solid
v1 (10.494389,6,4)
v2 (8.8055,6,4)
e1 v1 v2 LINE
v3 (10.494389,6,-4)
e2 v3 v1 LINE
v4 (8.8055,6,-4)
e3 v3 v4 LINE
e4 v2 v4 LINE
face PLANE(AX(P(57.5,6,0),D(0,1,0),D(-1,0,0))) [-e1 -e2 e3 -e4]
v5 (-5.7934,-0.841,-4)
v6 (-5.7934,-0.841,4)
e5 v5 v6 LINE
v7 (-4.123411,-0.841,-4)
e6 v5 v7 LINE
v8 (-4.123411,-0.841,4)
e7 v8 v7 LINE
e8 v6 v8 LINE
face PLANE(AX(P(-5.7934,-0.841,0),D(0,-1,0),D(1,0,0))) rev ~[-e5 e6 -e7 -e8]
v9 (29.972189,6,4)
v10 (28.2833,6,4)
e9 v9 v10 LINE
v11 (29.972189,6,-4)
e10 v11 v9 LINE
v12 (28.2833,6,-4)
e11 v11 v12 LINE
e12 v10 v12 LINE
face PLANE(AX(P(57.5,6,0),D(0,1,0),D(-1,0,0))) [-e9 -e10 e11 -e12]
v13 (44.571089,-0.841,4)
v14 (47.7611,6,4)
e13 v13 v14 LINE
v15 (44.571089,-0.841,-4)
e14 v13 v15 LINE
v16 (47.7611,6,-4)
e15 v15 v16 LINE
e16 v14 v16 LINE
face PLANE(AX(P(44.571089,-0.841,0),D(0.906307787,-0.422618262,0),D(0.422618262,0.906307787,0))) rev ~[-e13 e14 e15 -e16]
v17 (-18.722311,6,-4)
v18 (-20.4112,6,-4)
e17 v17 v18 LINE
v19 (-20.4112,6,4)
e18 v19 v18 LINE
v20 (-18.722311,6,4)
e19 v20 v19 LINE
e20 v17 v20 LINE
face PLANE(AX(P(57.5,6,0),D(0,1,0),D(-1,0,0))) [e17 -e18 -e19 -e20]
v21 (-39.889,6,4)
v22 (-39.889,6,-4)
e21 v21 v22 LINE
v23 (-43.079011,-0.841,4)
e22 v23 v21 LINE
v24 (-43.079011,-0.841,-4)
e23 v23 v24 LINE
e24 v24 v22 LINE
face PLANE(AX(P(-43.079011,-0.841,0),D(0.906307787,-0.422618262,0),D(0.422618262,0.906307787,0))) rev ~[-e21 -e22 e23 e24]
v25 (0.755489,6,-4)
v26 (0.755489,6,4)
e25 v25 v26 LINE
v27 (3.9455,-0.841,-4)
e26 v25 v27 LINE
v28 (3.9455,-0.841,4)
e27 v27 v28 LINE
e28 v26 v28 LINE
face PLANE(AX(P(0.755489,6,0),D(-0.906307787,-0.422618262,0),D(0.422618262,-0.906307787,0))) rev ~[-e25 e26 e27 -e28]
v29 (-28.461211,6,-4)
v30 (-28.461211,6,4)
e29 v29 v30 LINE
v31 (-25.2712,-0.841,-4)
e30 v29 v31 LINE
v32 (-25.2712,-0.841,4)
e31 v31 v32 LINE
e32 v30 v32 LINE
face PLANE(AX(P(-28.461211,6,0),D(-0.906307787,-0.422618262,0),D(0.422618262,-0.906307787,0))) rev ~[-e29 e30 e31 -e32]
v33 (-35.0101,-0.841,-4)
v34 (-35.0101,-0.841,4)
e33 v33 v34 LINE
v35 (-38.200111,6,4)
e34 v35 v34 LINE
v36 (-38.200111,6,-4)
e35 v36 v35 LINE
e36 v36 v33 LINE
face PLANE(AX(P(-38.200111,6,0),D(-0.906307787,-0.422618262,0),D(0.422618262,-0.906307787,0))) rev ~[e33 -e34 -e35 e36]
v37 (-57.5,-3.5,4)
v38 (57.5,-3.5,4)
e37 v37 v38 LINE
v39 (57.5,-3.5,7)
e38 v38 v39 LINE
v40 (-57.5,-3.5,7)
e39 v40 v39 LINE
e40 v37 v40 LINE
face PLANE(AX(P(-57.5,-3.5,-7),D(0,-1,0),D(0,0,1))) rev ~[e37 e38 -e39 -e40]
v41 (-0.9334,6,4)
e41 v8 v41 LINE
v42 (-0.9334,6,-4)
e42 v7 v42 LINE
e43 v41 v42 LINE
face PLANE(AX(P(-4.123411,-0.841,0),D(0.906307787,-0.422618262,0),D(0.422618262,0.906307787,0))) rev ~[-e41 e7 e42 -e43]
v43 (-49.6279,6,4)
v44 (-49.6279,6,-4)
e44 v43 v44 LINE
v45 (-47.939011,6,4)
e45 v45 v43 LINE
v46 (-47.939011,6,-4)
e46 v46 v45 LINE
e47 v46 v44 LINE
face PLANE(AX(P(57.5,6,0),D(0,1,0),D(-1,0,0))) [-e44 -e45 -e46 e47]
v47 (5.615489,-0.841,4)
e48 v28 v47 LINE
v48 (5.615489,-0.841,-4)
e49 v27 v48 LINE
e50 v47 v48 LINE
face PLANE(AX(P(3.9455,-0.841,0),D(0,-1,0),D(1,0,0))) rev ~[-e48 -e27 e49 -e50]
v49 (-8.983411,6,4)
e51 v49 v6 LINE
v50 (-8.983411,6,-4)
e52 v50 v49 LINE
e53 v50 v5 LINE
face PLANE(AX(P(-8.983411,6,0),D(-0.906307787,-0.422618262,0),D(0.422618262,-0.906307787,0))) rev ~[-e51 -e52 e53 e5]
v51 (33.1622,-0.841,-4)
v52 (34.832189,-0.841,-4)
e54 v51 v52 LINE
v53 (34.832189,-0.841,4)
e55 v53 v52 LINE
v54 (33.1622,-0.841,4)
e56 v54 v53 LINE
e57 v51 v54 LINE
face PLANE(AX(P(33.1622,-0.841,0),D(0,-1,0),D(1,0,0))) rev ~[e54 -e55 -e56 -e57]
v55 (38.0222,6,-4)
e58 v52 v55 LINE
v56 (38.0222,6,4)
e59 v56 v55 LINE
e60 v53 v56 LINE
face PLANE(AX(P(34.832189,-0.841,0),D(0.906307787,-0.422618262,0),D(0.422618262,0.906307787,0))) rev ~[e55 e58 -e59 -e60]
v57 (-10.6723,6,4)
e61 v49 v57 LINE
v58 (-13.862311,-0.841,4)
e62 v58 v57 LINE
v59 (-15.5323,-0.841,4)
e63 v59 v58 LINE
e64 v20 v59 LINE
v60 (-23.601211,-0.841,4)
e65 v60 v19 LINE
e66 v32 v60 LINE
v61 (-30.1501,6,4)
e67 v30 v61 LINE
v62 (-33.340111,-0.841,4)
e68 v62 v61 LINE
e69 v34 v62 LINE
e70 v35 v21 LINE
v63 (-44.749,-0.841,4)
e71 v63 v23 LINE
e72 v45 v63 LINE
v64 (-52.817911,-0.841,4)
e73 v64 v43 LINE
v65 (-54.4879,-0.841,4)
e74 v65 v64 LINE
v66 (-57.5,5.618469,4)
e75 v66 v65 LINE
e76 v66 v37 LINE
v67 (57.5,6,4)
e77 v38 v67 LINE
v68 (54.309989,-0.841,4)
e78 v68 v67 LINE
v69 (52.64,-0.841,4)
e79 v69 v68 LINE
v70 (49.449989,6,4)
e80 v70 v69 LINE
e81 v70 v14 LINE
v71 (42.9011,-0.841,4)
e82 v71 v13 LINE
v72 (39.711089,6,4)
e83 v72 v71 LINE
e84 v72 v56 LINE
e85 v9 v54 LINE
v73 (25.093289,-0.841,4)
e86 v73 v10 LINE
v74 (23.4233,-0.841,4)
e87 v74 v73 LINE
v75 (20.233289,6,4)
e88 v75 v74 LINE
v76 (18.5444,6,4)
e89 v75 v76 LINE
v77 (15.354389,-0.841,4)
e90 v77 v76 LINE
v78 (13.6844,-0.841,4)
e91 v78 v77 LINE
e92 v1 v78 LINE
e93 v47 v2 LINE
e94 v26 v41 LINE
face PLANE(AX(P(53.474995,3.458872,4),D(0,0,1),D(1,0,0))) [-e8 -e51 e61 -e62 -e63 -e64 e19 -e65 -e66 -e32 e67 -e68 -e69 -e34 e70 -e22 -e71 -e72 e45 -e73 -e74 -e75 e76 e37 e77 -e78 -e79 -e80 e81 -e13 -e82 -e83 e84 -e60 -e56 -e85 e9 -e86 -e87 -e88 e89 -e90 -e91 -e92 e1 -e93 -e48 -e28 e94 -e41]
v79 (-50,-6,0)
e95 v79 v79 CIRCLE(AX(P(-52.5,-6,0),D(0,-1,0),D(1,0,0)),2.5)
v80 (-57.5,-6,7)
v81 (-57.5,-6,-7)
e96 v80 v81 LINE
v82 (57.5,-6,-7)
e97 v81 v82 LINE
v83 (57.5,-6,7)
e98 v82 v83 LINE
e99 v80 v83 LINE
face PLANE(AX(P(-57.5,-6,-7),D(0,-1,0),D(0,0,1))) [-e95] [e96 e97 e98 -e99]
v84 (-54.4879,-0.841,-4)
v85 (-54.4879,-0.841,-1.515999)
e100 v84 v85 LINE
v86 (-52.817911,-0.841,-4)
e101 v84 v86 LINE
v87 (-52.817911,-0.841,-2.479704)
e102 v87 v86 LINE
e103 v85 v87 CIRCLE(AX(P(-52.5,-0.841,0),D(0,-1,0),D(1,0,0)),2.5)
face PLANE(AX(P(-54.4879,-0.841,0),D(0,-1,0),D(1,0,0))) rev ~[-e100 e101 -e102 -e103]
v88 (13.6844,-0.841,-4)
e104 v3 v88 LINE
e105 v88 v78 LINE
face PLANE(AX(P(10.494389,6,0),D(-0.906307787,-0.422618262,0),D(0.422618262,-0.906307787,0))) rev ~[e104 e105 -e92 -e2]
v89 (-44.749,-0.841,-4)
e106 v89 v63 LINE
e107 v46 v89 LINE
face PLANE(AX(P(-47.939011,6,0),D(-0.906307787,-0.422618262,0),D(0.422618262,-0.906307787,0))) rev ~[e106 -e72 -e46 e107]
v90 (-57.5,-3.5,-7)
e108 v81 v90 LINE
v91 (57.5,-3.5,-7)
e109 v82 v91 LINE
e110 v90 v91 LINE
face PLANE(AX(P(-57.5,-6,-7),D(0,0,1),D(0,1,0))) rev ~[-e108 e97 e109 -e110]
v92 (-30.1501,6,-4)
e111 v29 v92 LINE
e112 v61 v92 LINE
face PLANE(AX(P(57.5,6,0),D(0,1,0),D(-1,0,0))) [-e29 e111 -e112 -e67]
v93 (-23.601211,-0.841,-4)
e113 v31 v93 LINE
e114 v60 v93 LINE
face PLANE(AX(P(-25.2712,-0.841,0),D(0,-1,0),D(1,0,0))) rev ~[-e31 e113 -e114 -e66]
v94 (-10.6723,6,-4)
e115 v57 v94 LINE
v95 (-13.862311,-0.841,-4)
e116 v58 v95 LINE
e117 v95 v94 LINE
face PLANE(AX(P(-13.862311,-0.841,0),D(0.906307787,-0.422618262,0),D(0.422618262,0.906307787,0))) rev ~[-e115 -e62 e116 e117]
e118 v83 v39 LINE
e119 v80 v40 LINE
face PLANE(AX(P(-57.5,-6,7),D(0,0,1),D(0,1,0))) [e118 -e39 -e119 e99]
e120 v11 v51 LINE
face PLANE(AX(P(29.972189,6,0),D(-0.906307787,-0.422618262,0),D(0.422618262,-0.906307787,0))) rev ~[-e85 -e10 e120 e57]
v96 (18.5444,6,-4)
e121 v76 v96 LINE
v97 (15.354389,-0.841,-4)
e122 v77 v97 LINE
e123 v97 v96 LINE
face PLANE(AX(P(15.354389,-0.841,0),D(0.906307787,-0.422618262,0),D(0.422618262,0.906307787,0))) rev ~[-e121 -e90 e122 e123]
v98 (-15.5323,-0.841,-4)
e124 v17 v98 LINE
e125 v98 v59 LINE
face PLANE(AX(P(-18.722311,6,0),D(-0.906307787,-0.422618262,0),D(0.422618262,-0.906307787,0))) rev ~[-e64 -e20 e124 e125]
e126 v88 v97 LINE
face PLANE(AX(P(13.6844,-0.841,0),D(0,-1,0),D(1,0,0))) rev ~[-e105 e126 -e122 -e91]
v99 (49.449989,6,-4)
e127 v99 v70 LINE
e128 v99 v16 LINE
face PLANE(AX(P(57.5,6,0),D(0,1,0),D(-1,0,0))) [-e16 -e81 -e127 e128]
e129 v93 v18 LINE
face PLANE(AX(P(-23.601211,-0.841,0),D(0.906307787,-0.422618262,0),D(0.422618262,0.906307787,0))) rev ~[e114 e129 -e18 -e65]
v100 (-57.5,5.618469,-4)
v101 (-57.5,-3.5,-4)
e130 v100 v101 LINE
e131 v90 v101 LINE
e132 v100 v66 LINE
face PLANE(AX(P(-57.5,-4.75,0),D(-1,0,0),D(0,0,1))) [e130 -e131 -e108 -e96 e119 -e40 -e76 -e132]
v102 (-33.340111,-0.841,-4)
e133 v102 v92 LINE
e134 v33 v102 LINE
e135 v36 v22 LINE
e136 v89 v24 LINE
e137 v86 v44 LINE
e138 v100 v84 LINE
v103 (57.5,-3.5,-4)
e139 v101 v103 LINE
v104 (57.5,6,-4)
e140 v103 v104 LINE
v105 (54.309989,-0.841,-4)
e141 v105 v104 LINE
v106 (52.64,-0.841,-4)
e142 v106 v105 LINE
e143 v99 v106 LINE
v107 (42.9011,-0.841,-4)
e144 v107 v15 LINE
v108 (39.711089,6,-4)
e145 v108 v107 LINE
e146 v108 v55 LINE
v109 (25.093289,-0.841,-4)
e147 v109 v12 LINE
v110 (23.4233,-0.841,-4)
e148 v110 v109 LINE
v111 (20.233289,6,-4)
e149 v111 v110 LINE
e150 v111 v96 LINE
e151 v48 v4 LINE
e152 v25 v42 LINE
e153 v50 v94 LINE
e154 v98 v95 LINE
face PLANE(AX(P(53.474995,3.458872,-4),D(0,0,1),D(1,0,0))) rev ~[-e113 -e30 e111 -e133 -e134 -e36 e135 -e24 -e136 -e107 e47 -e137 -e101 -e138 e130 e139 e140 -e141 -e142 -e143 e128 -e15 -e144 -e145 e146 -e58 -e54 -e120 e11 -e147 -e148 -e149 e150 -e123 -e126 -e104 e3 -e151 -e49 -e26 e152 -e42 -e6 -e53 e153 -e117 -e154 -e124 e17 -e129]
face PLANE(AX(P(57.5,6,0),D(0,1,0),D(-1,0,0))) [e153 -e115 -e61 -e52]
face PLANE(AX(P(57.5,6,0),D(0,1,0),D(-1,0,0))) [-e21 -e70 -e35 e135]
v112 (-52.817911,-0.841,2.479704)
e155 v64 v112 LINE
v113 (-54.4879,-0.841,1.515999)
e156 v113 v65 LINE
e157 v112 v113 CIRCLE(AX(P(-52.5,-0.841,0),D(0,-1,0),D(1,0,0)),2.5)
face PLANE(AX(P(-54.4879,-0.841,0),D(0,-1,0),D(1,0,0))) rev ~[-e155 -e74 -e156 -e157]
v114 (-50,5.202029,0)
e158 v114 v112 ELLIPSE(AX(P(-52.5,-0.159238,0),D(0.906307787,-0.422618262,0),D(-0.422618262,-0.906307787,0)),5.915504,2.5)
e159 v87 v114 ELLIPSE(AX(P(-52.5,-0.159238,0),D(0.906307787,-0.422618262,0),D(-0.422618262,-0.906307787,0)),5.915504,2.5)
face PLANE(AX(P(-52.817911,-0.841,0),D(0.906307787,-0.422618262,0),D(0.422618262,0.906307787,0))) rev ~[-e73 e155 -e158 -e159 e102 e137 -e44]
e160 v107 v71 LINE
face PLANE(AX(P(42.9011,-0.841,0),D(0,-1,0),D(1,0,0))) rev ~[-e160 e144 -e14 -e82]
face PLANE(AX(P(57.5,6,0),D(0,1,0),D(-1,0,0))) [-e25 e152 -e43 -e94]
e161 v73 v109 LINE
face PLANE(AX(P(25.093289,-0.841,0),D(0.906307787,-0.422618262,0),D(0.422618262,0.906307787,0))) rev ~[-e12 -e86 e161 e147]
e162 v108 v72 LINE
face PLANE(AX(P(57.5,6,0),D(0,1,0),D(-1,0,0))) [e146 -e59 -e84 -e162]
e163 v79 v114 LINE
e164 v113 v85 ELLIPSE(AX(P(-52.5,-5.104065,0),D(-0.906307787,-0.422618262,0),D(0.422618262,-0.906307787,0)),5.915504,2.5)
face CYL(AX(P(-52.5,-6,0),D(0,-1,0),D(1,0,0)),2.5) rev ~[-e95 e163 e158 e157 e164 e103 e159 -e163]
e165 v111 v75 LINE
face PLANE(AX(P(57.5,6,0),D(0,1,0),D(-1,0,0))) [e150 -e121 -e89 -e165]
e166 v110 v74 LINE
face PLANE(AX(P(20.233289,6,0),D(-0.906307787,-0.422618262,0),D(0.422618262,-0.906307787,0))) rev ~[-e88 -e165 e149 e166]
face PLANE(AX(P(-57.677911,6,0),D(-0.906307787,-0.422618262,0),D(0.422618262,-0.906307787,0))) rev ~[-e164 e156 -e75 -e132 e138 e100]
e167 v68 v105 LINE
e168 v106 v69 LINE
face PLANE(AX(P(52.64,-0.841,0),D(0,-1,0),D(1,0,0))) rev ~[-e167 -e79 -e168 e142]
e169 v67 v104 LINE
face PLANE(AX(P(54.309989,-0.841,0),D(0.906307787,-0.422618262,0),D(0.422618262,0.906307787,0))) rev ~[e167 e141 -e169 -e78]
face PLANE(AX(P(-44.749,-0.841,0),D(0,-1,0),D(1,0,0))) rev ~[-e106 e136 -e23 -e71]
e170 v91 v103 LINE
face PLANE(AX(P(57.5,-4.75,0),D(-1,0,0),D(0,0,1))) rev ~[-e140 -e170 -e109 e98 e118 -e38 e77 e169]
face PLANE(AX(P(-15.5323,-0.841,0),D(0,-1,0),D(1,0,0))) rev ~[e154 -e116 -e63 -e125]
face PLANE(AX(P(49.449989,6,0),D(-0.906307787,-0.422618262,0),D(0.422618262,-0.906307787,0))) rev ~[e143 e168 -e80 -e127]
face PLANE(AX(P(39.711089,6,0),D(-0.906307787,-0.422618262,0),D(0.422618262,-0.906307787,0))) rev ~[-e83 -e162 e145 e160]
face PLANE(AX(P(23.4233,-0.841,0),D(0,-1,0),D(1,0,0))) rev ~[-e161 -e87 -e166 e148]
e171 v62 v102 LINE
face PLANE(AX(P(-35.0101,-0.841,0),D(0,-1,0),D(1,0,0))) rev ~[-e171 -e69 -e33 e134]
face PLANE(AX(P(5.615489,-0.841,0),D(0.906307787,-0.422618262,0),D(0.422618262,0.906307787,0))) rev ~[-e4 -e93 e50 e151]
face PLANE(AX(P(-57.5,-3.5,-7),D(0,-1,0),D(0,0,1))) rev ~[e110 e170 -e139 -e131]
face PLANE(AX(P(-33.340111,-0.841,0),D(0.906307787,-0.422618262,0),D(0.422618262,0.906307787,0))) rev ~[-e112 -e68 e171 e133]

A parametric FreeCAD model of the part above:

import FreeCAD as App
import Part
import Sketcher
Q = App.Units.Quantity


def add_polygon(sketch, points):
    """Adds a closed chain of lines whose ends are joined by coincident constraints."""
    first, n = sketch.GeometryCount, len(points)
    for a, b in zip(points, points[1:] + points[:1]):
        sketch.addGeometry(Part.LineSegment(App.Vector(*a, 0), App.Vector(*b, 0)), False)
    for i in range(n):
        sketch.addConstraint(Sketcher.Constraint("Coincident", first + i, 2, first + (i + 1) % n, 1))

doc = App.newDocument("Part")
params = doc.addObject("Spreadsheet::Sheet", "Params")
for row, (alias, value) in enumerate([
    ("sketch1_width", "115 mm"),
    ("sketch1_height", "12 mm"),
    ("pad1_length", "8 mm"),
    ("pocket1_length", "10 mm"),
    ("linearpattern_pitch", "9.7389 mm"),
    ("sketch3_height", "14 mm"),
    ("sketch3_width", "2.5 mm"),
    ("pad2_length", "115 mm"),
    ("sketch4_diameter", "5 mm"),
], start=1):
    params.set(f"A{row}", alias)
    params.set(f"B{row}", "=" + value)
    params.setAlias(f"B{row}", alias)

body = doc.addObject("PartDesign::Body", "Body")

# Sketch on XY plane
sketch1 = body.newObject("Sketcher::SketchObject", "Sketch")
sketch1.AttachmentSupport = (doc.getObject("XY_Plane"), [""])
sketch1.MapMode = "FlatFace"
add_polygon(sketch1, [(57.5, 6), (-57.5, 6), (-57.5, -6), (57.5, -6)])  # lines 0-3
sketch1.addConstraint([
    Sketcher.Constraint("Horizontal", 0),
    Sketcher.Constraint("Vertical", 1),
    Sketcher.Constraint("Horizontal", 2),
    Sketcher.Constraint("Vertical", 3),
    Sketcher.Constraint("Symmetric", 0, 2, 2, 2, -1, 1),
    Sketcher.Constraint("DistanceX", 0, 2, 0, 1, 115.0),
    Sketcher.Constraint("DistanceY", 1, 2, 1, 1, 12.0),
])
sketch1.setExpression("Constraints[9]", "Params.sketch1_width")
sketch1.setExpression("Constraints[10]", "Params.sketch1_height")
pad1 = body.newObject("PartDesign::Pad", "Pad")
pad1.Profile = sketch1
pad1.setExpression("Length", "Params.pad1_length")
pad1.Midplane = True

# Sketch on XY plane
sketch2 = body.newObject("Sketcher::SketchObject", "Sketch001")
sketch2.AttachmentSupport = (doc.getObject("XY_Plane"), [""])
sketch2.MapMode = "FlatFace"
add_polygon(sketch2, [(57.5, 6), (49.449989, 6), (52.64, -0.841), (54.309989, -0.841)])  # lines 0-3
sketch2.addConstraint([
    Sketcher.Constraint("Horizontal", 0),
    Sketcher.Constraint("Horizontal", 2),
    Sketcher.Constraint("Equal", 1, 3),
    Sketcher.Constraint("Angle", 1, Q("-65 deg")),
    Sketcher.Constraint("DistanceY", -1, 1, 0, 2, 6.0),
    Sketcher.Constraint("DistanceX", -1, 1, 3, 2, 57.5),
    Sketcher.Constraint("DistanceX", -1, 1, 1, 2, 52.64),
    Sketcher.Constraint("DistanceY", 1, 2, -1, 1, 0.841),
])
pocket1 = body.newObject("PartDesign::Pocket", "Pocket")
pocket1.Profile = sketch2
pocket1.setExpression("Length", "Params.pocket1_length")
pocket1.Midplane = True
doc.recompute()

linearpattern = body.newObject("PartDesign::LinearPattern", "LinearPattern")
linearpattern.Originals = [pocket1]
linearpattern.Direction = (doc.getObject("X_Axis"), [""])
linearpattern.Mode = "offset"
linearpattern.setExpression("Offset", "Params.linearpattern_pitch")
linearpattern.Occurrences = 13
linearpattern.Reversed = True
body.Tip = linearpattern

# Sketch on YZ plane
sketch3 = body.newObject("Sketcher::SketchObject", "Sketch002")
sketch3.AttachmentSupport = (doc.getObject("YZ_Plane"), [""])
sketch3.MapMode = "FlatFace"
sketch3.AttachmentOffset = App.Placement(App.Vector(0, 0, -57.5), App.Rotation())
add_polygon(sketch3, [(-3.5, -7), (-6, -7), (-6, 7), (-3.5, 7)])  # lines 0-3
sketch3.addConstraint([
    Sketcher.Constraint("Horizontal", 0),
    Sketcher.Constraint("Vertical", 1),
    Sketcher.Constraint("Horizontal", 2),
    Sketcher.Constraint("Vertical", 3),
    Sketcher.Constraint("DistanceY", 1, 1, 1, 2, 14.0),
    Sketcher.Constraint("DistanceX", 0, 2, 0, 1, 2.5),
    Sketcher.Constraint("DistanceX", 0, 2, -1, 1, 6.0),
    Sketcher.Constraint("DistanceY", 0, 2, -1, 1, 7.0),
])
sketch3.setExpression("Constraints[8]", "Params.sketch3_height")
sketch3.setExpression("Constraints[9]", "Params.sketch3_width")
pad2 = body.newObject("PartDesign::Pad", "Pad001")
pad2.Profile = sketch3
pad2.setExpression("Length", "Params.pad2_length")

# Sketch on XZ plane
sketch4 = body.newObject("Sketcher::SketchObject", "Sketch003")
sketch4.AttachmentSupport = (doc.getObject("XZ_Plane"), [""])
sketch4.MapMode = "FlatFace"
sketch4.AttachmentOffset = App.Placement(App.Vector(0, 0, 6), App.Rotation())
sketch4.addGeometry(Part.Circle(App.Vector(-52.5, 0, 0), App.Vector(0, 0, 1), 2.5), False)
sketch4.addConstraint([
    Sketcher.Constraint("PointOnObject", 0, 3, -1),
    Sketcher.Constraint("Diameter", 0, 5.0),
    Sketcher.Constraint("DistanceX", 0, 3, -1, 1, 52.5),
])
sketch4.setExpression("Constraints[1]", "Params.sketch4_diameter")
pocket2 = body.newObject("PartDesign::Pocket", "Pocket001")
pocket2.Profile = sketch4
pocket2.Type = "ThroughAll"

doc.recompute()
